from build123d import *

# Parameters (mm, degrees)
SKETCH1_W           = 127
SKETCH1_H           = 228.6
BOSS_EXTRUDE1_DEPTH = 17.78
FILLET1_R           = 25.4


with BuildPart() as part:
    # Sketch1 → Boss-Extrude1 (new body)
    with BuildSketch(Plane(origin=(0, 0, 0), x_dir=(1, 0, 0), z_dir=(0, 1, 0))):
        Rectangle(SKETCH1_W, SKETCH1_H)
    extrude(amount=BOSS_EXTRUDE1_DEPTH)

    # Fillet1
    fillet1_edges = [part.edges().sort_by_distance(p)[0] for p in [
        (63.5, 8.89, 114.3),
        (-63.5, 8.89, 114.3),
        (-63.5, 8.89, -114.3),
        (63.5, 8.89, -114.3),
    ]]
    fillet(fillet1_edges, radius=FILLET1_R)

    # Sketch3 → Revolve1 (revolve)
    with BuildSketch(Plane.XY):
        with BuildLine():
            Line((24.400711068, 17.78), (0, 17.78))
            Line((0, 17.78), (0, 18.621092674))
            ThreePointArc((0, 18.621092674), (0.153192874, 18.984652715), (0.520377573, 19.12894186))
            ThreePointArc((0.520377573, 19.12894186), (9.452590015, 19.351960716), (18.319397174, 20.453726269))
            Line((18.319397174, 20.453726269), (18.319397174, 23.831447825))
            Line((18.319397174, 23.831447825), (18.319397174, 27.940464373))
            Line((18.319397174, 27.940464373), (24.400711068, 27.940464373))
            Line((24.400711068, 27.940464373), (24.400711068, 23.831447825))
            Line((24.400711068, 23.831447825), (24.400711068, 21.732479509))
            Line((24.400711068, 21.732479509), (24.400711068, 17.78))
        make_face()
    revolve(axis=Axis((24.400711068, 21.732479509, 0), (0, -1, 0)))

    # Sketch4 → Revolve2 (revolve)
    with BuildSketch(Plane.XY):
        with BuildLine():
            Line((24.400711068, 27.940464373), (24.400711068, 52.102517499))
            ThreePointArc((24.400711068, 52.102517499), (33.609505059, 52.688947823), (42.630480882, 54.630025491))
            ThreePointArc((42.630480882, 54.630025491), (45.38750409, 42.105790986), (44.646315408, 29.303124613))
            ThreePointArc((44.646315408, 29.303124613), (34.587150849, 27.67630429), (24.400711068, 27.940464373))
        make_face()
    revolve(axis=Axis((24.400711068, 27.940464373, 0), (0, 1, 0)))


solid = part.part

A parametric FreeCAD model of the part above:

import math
import FreeCAD as App
import Part
import Sketcher
from FreeCAD import Vector
Q = App.Units.Quantity


def edges_at(feature, points):
    """Names of the edges that pass closest to the given points."""
    edges = feature.Shape.Edges
    near = lambda p: min(range(len(edges)), key=lambda i: edges[i].distToShape(Part.Vertex(*p))[0])
    return sorted({f"Edge{near(p) + 1}" for p in points})


def add_polygon(sketch, points):
    """Adds a closed chain of lines whose ends are joined by coincident constraints."""
    first, n = sketch.GeometryCount, len(points)
    for a, b in zip(points, points[1:] + points[:1]):
        sketch.addGeometry(Part.LineSegment(App.Vector(*a, 0), App.Vector(*b, 0)), False)
    for i in range(n):
        sketch.addConstraint(Sketcher.Constraint("Coincident", first + i, 2, first + (i + 1) % n, 1))

doc = App.newDocument("Part")
body = doc.addObject("PartDesign::Body", "Body")

sketch1 = body.newObject("Sketcher::SketchObject", "Sketch")
sketch1.AttachmentSupport = (doc.getObject("XZ_Plane"), [""])
sketch1.MapMode = "FlatFace"
add_polygon(sketch1, [(-63.5, -114.3), (-63.5, 114.3), (63.5, 114.3), (63.5, -114.3)])
sketch1.addConstraint(Sketcher.Constraint("Vertical", 0))
sketch1.addConstraint(Sketcher.Constraint("Horizontal", 1))
sketch1.addConstraint(Sketcher.Constraint("Vertical", 2))
sketch1.addConstraint(Sketcher.Constraint("Horizontal", 3))
sketch1.addConstraint(Sketcher.Constraint("Symmetric", 0, 2, 2, 2, -1, 1))
sketch1.addConstraint(Sketcher.Constraint("DistanceX", 1, 1, 1, 2, Q("5 in")))
sketch1.addConstraint(Sketcher.Constraint("DistanceY", 0, 1, 0, 2, Q("9 in")))
pad1 = body.newObject("PartDesign::Pad", "Pad")
pad1.Profile = sketch1
pad1.Length = Q("0.7 in")
pad1.Reversed = True
doc.recompute()

fillet = body.newObject("PartDesign::Fillet", "Fillet")
fillet.Base = (pad1, edges_at(pad1, [
    (63.5, 8.89, 114.3),
    (-63.5, 8.89, 114.3),
    (-63.5, 8.89, -114.3),
    (63.5, 8.89, -114.3),
]))
fillet.Radius = Q("1 in")

sketch2 = body.newObject("Sketcher::SketchObject", "Sketch001")
sketch2.AttachmentSupport = (doc.getObject("XY_Plane"), [""])
sketch2.MapMode = "FlatFace"
sketch2.addGeometry(Part.LineSegment(Vector(0, 17.78, 0), Vector(24.400711, 17.78, 0)), False)
sketch2.addGeometry(Part.LineSegment(Vector(24.400711, 17.78, 0), Vector(24.400711, 27.940464, 0)), False)
sketch2.addGeometry(Part.LineSegment(Vector(24.400711, 27.940464, 0), Vector(18.319397, 27.940464, 0)), False)
sketch2.addGeometry(Part.LineSegment(Vector(18.319397, 27.940464, 0), Vector(18.319397, 20.453726, 0)), False)
sketch2.addGeometry(Part.ArcOfCircle(Part.Circle(Vector(2.72786, 109.701459, 0), Vector(0, 0, 1), 90.599415), math.radians(-91.396167), math.radians(-80.090459)), False)
sketch2.addGeometry(Part.ArcOfCircle(Part.Circle(Vector(0.508, 18.621093, 0), Vector(0, 0, 1), 0.508), math.radians(88.603833), math.radians(180)), False)
sketch2.addGeometry(Part.LineSegment(Vector(0, 18.621093, 0), Vector(0, 17.78, 0)), False)
sketch2.addGeometry(Part.LineSegment(Vector(24.400711, 109.701459, 0), Vector(24.400711, 17.78, 0)), True)
sketch2.addConstraint(Sketcher.Constraint("Coincident", 0, 2, 1, 1))
sketch2.addConstraint(Sketcher.Constraint("Coincident", 1, 2, 2, 1))
sketch2.addConstraint(Sketcher.Constraint("Coincident", 2, 2, 3, 1))
sketch2.addConstraint(Sketcher.Constraint("Coincident", 3, 2, 4, 2))
sketch2.addConstraint(Sketcher.Constraint("Tangent", 4, 1, 5, 1))
sketch2.addConstraint(Sketcher.Constraint("Tangent", 5, 2, 6, 1))
sketch2.addConstraint(Sketcher.Constraint("Coincident", 6, 2, 0, 1))
sketch2.addConstraint(Sketcher.Constraint("Horizontal", 0))
sketch2.addConstraint(Sketcher.Constraint("Vertical", 1))
sketch2.addConstraint(Sketcher.Constraint("Horizontal", 2))
sketch2.addConstraint(Sketcher.Constraint("Vertical", 3))
sketch2.addConstraint(Sketcher.Constraint("Vertical", 6))
sketch2.addConstraint(Sketcher.Constraint("Vertical", 7))
sketch2.addConstraint(Sketcher.Constraint("Coincident", 7, 2, 0, 2))
sketch2.addConstraint(Sketcher.Constraint("PointOnObject", 5, 2, -2))
sketch2.addConstraint(Sketcher.Constraint("Horizontal", 4, 3, 7, 1))
sketch2.addConstraint(Sketcher.Constraint("Radius", 5, Q("0.02 in")))
sketch2.addConstraint(Sketcher.Constraint("DistanceY", -1, 1, 0, 2, Q("0.7 in")))
sketch2.addConstraint(Sketcher.Constraint("Radius", 4, Q("90.599415 mm")))
sketch2.addConstraint(Sketcher.Constraint("DistanceX", 0, 1, 0, 2, Q("24.400711 mm")))
sketch2.addConstraint(Sketcher.Constraint("DistanceY", 3, 2, 3, 1, Q("7.486738 mm")))
sketch2.addConstraint(Sketcher.Constraint("DistanceY", 7, 2, 7, 1, Q("91.921459 mm")))
sketch2.addConstraint(Sketcher.Constraint("DistanceX", 2, 2, 2, 1, Q("6.081314 mm")))
sketch2.addConstraint(Sketcher.Constraint("DistanceY", 1, 1, 1, 2, Q("10.160464 mm")))
revolution = body.newObject("PartDesign::Revolution", "Revolution")
revolution.Profile = sketch2
revolution.ReferenceAxis = (sketch2, ["Axis0"])
revolution.Angle = 360

sketch3 = body.newObject("Sketcher::SketchObject", "Sketch002")
sketch3.AttachmentSupport = (doc.getObject("XY_Plane"), [""])
sketch3.MapMode = "FlatFace"
sketch3.addGeometry(Part.LineSegment(Vector(24.400711, 52.102517, 0), Vector(24.400711, 27.940464, 0)), False)
sketch3.addGeometry(Part.ArcOfCircle(Part.Circle(Vector(30.908034, 82.338465, 0), Vector(0, 0, 1), 54.785835), math.radians(-96.821552), math.radians(-75.47731)), False)
sketch3.addGeometry(Part.ArcOfCircle(Part.Circle(Vector(-1.328462, 38.387545, 0), Vector(0, 0, 1), 46.863705), math.radians(-11.177415), math.radians(20.278872)), False)
sketch3.addGeometry(Part.ArcOfCircle(Part.Circle(Vector(25.059251, 114.358056, 0), Vector(0, 0, 1), 62.259022), math.radians(-90.606053), math.radians(-73.606785)), False)
sketch3.addGeometry(Part.LineSegment(Vector(24.400711, 27.940464, 0), Vector(24.400711, 114.358056, 0)), True)
sketch3.addConstraint(Sketcher.Constraint("Coincident", 0, 2, 1, 1))
sketch3.addConstraint(Sketcher.Constraint("Coincident", 1, 2, 2, 1))
sketch3.addConstraint(Sketcher.Constraint("Coincident", 2, 2, 3, 2))
sketch3.addConstraint(Sketcher.Constraint("Coincident", 3, 1, 0, 1))
sketch3.addConstraint(Sketcher.Constraint("Vertical", 0))
sketch3.addConstraint(Sketcher.Constraint("Vertical", 4))
sketch3.addConstraint(Sketcher.Constraint("Coincident", 4, 1, 0, 2))
sketch3.addConstraint(Sketcher.Constraint("Radius", 3, Q("62.259022 mm")))
sketch3.addConstraint(Sketcher.Constraint("Radius", 1, Q("54.785835 mm")))
sketch3.addConstraint(Sketcher.Constraint("Radius", 2, Q("46.863705 mm")))
sketch3.addConstraint(Sketcher.Constraint("DistanceY", 0, 2, 1, 3, Q("54.398001 mm")))
sketch3.addConstraint(Sketcher.Constraint("DistanceY", 1, 2, 2, 2, Q("25.326901 mm")))
sketch3.addConstraint(Sketcher.Constraint("DistanceY", 0, 2, 0, 1, Q("24.162053 mm")))
sketch3.addConstraint(Sketcher.Constraint("DistanceY", 4, 1, 4, 2, Q("86.417592 mm")))
sketch3.addConstraint(Sketcher.Constraint("DistanceX", -1, 1, 3, 3, Q("25.059251 mm")))
sketch3.addConstraint(Sketcher.Constraint("DistanceX", -1, 1, 0, 2, Q("24.400711 mm")))
sketch3.addConstraint(Sketcher.Constraint("DistanceX", -1, 1, 2, 2, Q("42.630481 mm")))
sketch3.addConstraint(Sketcher.Constraint("DistanceY", -1, 1, 1, 3, Q("82.338465 mm")))
revolution2 = body.newObject("PartDesign::Revolution", "Revolution001")
revolution2.Profile = sketch3
revolution2.ReferenceAxis = (sketch3, ["Axis0"])
revolution2.Angle = 360

doc.recompute()
